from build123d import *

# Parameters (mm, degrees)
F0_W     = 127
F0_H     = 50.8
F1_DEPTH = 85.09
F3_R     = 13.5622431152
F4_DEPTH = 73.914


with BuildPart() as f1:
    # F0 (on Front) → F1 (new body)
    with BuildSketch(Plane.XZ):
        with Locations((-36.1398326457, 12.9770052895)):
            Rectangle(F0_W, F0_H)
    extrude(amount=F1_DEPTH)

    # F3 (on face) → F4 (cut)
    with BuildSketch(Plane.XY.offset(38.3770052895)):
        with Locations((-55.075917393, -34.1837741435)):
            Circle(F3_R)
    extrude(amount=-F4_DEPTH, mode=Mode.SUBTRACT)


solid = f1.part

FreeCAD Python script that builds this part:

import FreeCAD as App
import Part
import Sketcher

V = App.Vector
Q = App.Units.Quantity


def add_polygon(sketch, points):
    """Adds a closed chain of lines whose ends are joined by coincident constraints."""
    first, n = sketch.GeometryCount, len(points)
    for a, b in zip(points, points[1:] + points[:1]):
        sketch.addGeometry(Part.LineSegment(App.Vector(*a, 0), App.Vector(*b, 0)), False)
    for i in range(n):
        sketch.addConstraint(Sketcher.Constraint("Coincident", first + i, 2, first + (i + 1) % n, 1))

doc = App.newDocument("Part")
body = doc.addObject("PartDesign::Body", "Body")

# Sketch on XZ plane
sketch1 = doc.addObject("Sketcher::SketchObject", "Sketch")
body.addObject(sketch1)
sketch1.AttachmentSupport = (doc.XZ_Plane, [""])
sketch1.MapMode = "FlatFace"
add_polygon(sketch1, [(-99.639833, 38.377005), (-99.639833, -12.422995), (27.360167, -12.422995), (27.360167, 38.377005)])  # lines 0-3
sketch1.addConstraint([
    Sketcher.Constraint("Vertical", 0),
    Sketcher.Constraint("Horizontal", 1),
    Sketcher.Constraint("Vertical", 2),
    Sketcher.Constraint("Horizontal", 3),
    Sketcher.Constraint("DistanceX", 1, 1, 1, 2, Q("5 in")),
    Sketcher.Constraint("DistanceY", 0, 2, 0, 1, Q("2 in")),
    Sketcher.Constraint("DistanceX", 0, 2, -1, 1, Q("99.639833 mm")),
    Sketcher.Constraint("DistanceY", 0, 2, -1, 1, Q("12.422995 mm")),
])
pad1 = doc.addObject("PartDesign::Pad", "Pad")
body.addObject(pad1)
pad1.Profile = sketch1
pad1.Length = Q("3.35 in")

# Sketch on XY plane
sketch2 = doc.addObject("Sketcher::SketchObject", "Sketch001")
body.addObject(sketch2)
sketch2.AttachmentSupport = (doc.XY_Plane, [""])
sketch2.MapMode = "FlatFace"
sketch2.AttachmentOffset = App.Placement(V(0, 0, 38.377005), App.Rotation())
sketch2.addGeometry(Part.Circle(V(-55.075917, -34.183774, 0), V(0, 0, 1), 13.562243), False)
sketch2.addConstraint([
    Sketcher.Constraint("Diameter", 0, Q("27.124486 mm")),
    Sketcher.Constraint("DistanceX", 0, 3, -1, 1, Q("55.075917 mm")),
    Sketcher.Constraint("DistanceY", 0, 3, -1, 1, Q("34.183774 mm")),
])
pocket1 = doc.addObject("PartDesign::Pocket", "Pocket")
body.addObject(pocket1)
pocket1.Profile = sketch2
pocket1.Length = Q("2.91 in")

doc.recompute()
